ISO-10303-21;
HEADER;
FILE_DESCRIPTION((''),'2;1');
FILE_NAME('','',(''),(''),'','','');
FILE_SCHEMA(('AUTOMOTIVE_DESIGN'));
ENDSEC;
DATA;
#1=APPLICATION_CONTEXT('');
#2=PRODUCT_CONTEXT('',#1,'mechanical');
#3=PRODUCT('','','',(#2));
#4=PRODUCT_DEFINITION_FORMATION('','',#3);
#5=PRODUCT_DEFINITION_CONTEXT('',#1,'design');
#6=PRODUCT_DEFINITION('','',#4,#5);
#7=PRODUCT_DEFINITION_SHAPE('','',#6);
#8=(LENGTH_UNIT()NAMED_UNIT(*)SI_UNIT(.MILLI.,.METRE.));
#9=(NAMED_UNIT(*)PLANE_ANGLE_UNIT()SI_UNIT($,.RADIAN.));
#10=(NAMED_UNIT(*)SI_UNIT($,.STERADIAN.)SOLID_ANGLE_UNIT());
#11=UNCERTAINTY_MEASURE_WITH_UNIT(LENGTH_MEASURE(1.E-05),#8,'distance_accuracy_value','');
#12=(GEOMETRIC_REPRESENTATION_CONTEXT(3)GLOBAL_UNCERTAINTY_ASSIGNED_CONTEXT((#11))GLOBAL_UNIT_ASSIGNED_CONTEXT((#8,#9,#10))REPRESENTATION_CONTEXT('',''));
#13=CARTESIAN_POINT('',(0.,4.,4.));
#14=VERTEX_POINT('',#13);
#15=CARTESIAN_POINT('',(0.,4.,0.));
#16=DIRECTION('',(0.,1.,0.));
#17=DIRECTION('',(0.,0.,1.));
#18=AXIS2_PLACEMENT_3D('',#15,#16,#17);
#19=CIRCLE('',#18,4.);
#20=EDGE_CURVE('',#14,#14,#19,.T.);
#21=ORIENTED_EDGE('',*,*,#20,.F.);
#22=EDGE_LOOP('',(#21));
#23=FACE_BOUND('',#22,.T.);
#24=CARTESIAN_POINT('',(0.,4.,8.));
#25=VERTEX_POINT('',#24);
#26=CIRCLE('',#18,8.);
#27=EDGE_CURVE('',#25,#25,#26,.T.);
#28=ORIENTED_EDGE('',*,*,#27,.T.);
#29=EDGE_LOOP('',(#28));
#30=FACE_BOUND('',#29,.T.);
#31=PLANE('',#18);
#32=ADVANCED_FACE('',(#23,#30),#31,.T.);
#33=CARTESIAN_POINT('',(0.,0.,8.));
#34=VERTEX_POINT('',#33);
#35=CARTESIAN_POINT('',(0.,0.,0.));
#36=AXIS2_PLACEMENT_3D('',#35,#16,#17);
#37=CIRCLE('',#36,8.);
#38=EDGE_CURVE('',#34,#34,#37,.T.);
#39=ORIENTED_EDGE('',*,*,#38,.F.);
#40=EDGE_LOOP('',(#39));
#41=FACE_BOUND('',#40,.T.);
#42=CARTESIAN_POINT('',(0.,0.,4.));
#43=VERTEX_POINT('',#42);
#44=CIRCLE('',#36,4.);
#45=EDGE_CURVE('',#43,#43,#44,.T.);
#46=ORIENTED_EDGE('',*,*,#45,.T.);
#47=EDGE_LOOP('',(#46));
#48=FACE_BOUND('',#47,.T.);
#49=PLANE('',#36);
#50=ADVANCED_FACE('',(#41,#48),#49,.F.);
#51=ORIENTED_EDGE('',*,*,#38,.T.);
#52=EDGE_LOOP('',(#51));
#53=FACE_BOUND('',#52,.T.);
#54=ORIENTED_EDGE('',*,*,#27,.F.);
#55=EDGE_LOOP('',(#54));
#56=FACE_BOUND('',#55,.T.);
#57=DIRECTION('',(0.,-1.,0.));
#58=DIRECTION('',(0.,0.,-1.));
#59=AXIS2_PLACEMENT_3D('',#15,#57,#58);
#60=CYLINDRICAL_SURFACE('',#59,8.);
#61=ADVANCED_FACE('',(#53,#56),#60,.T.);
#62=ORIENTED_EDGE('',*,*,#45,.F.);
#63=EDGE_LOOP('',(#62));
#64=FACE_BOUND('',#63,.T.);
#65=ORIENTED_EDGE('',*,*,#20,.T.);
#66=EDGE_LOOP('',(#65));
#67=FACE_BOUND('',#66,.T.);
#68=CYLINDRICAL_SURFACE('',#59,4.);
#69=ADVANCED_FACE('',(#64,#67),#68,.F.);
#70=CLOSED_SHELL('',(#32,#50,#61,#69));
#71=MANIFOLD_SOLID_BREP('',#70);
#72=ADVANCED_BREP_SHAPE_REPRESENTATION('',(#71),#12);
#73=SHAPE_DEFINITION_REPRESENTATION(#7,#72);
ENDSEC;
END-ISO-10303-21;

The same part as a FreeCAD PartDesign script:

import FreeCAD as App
import Part
import Sketcher
from FreeCAD import Vector

doc = App.newDocument("Part")
body = doc.addObject("PartDesign::Body", "Body")

# Sketch on XZ plane
sketch1 = doc.addObject("Sketcher::SketchObject", "Sketch")
body.addObject(sketch1)
sketch1.AttachmentSupport = (doc.XZ_Plane, [""])
sketch1.MapMode = "FlatFace"
sketch1.addGeometry(Part.Circle(Vector(0, 0, 0), Vector(0, 0, 1), 8), False)
sketch1.addGeometry(Part.Circle(Vector(0, 0, 0), Vector(0, 0, 1), 4), False)
sketch1.addConstraint(Sketcher.Constraint("Coincident", 0, 3, -1, 1))
sketch1.addConstraint(Sketcher.Constraint("Coincident", 1, 3, -1, 1))
sketch1.addConstraint(Sketcher.Constraint("Diameter", 0, 16.0))
sketch1.addConstraint(Sketcher.Constraint("Diameter", 1, 8.0))
pad1 = doc.addObject("PartDesign::Pad", "Pad")
body.addObject(pad1)
pad1.Profile = sketch1
pad1.Length = 4
pad1.Reversed = True

doc.recompute()
